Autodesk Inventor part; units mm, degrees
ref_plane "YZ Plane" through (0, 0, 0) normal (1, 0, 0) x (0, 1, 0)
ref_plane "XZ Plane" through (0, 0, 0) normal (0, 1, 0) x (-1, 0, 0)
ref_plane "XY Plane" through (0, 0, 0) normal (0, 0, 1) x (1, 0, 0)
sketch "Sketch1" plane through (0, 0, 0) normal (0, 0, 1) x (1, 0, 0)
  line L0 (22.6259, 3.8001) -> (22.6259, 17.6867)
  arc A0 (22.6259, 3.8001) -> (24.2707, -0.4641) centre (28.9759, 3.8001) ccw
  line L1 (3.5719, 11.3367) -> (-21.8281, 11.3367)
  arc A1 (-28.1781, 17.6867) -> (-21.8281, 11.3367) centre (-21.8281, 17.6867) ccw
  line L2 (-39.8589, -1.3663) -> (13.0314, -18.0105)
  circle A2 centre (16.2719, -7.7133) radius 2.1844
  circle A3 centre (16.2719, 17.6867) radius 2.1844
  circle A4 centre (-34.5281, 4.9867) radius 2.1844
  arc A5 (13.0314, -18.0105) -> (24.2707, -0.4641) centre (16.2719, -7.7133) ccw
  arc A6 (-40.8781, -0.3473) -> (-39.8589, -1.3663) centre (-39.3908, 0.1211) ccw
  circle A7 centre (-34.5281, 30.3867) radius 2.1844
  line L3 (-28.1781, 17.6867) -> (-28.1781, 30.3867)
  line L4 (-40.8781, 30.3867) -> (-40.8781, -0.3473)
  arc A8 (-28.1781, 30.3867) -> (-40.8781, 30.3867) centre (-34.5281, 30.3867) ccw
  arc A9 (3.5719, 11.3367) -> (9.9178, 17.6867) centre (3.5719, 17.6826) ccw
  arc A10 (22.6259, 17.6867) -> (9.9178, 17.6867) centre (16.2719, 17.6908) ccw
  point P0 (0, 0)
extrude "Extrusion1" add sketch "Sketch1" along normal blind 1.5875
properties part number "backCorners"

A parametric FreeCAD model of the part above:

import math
import FreeCAD as App
import Part
import Sketcher
from FreeCAD import Vector
Q = App.Units.Quantity

doc = App.newDocument("Part")
params = doc.addObject("Spreadsheet::Sheet", "Params")
for row, (alias, value) in enumerate([
    ("sketch1_width", "1 in"),
    ("sketch1_radius", "0.25 in"),
    ("sketch1_diameter", "0.172 in"),
    ("sketch1_height", "0.5 in"),
    ("sketch1_radius2", "0.425 in"),
    ("pad1_length", "0.0625 in"),
], start=1):
    params.set(f"A{row}", alias)
    params.set(f"B{row}", "=" + value)
    params.setAlias(f"B{row}", alias)

body = doc.addObject("PartDesign::Body", "Body")

# Sketch on XY plane
sketch1 = doc.addObject("Sketcher::SketchObject", "Sketch")
body.addObject(sketch1)
sketch1.AttachmentSupport = (doc.XY_Plane, [""])
sketch1.MapMode = "FlatFace"
sketch1.addGeometry(Part.ArcOfCircle(Part.Circle(Vector(29, 3.8, 0), Vector(0, 0, 1), 6.3), math.radians(180), math.radians(222)), False)
sketch1.addGeometry(Part.LineSegment(Vector(22.6, 3.8, 0), Vector(22.6, 17.7, 0)), False)
sketch1.addGeometry(Part.ArcOfCircle(Part.Circle(Vector(16.3, 17.7, 0), Vector(0, 0, 1), 6.4), math.radians(0), math.radians(180)), False)
sketch1.addGeometry(Part.ArcOfCircle(Part.Circle(Vector(3.6, 17.7, 0), Vector(0, 0, 1), 6.3), math.radians(-90), math.radians(0)), False)
sketch1.addGeometry(Part.LineSegment(Vector(3.6, 11.3, 0), Vector(-21.8, 11.3, 0)), False)
sketch1.addGeometry(Part.ArcOfCircle(Part.Circle(Vector(-21.8, 17.7, 0), Vector(0, 0, 1), 6.4), math.radians(180), math.radians(270)), False)
sketch1.addGeometry(Part.LineSegment(Vector(-28.2, 17.7, 0), Vector(-28.2, 30.4, 0)), False)
sketch1.addGeometry(Part.ArcOfCircle(Part.Circle(Vector(-34.5, 30.4, 0), Vector(0, 0, 1), 6.4), math.radians(0), math.radians(180)), False)
sketch1.addGeometry(Part.LineSegment(Vector(-40.9, 30.4, 0), Vector(-40.9, -0.3, 0)), False)
sketch1.addGeometry(Part.ArcOfCircle(Part.Circle(Vector(-39.4, 0.1, 0), Vector(0, 0, 1), 1.6), math.radians(-163), math.radians(-107)), False)
sketch1.addGeometry(Part.LineSegment(Vector(-39.9, -1.4, 0), Vector(13, -18, 0)), False)
sketch1.addGeometry(Part.ArcOfCircle(Part.Circle(Vector(16.3, -7.7, 0), Vector(0, 0, 1), 10.8), math.radians(-107), math.radians(42)), False)
sketch1.addGeometry(Part.Circle(Vector(-34.5, 5, 0), Vector(0, 0, 1), 2.2), False)
sketch1.addGeometry(Part.Circle(Vector(16.3, -7.7, 0), Vector(0, 0, 1), 2.2), False)
sketch1.addGeometry(Part.Circle(Vector(-34.5, 30.4, 0), Vector(0, 0, 1), 2.2), False)
sketch1.addGeometry(Part.Circle(Vector(16.3, 17.7, 0), Vector(0, 0, 1), 2.2), False)
sketch1.addConstraint(Sketcher.Constraint("Tangent", 0, 1, 1, 1))
sketch1.addConstraint(Sketcher.Constraint("Coincident", 1, 2, 2, 1))
sketch1.addConstraint(Sketcher.Constraint("Tangent", 2, 2, 3, 2))
sketch1.addConstraint(Sketcher.Constraint("Tangent", 3, 1, 4, 1))
sketch1.addConstraint(Sketcher.Constraint("Tangent", 4, 2, 5, 2))
sketch1.addConstraint(Sketcher.Constraint("Tangent", 5, 1, 6, 1))
sketch1.addConstraint(Sketcher.Constraint("Tangent", 6, 2, 7, 1))
sketch1.addConstraint(Sketcher.Constraint("Tangent", 7, 2, 8, 1))
sketch1.addConstraint(Sketcher.Constraint("Coincident", 8, 2, 9, 1))
sketch1.addConstraint(Sketcher.Constraint("Tangent", 9, 2, 10, 1))
sketch1.addConstraint(Sketcher.Constraint("Tangent", 10, 2, 11, 1))
sketch1.addConstraint(Sketcher.Constraint("Tangent", 11, 2, 0, 2))
sketch1.addConstraint(Sketcher.Constraint("Vertical", 1))
sketch1.addConstraint(Sketcher.Constraint("Horizontal", 4))
sketch1.addConstraint(Sketcher.Constraint("Vertical", 6))
sketch1.addConstraint(Sketcher.Constraint("Vertical", 8))
sketch1.addConstraint(Sketcher.Constraint("Coincident", 13, 3, 11, 3))
sketch1.addConstraint(Sketcher.Constraint("Coincident", 14, 3, 7, 3))
sketch1.addConstraint(Sketcher.Constraint("Equal", 0, 5))
sketch1.addConstraint(Sketcher.Constraint("Equal", 5, 7))
sketch1.addConstraint(Sketcher.Constraint("Equal", 12, 13))
sketch1.addConstraint(Sketcher.Constraint("Equal", 13, 14))
sketch1.addConstraint(Sketcher.Constraint("Equal", 14, 15))
sketch1.addConstraint(Sketcher.Constraint("Horizontal", 5, 3, 15, 3))
sketch1.addConstraint(Sketcher.Constraint("Horizontal", 15, 3, 1, 2))
sketch1.addConstraint(Sketcher.Constraint("Horizontal", 1, 2, 2, 2))
sketch1.addConstraint(Sketcher.Constraint("Vertical", 2, 3, 11, 3))
sketch1.addConstraint(Sketcher.Constraint("Vertical", 7, 3, 12, 3))
sketch1.addConstraint(Sketcher.Constraint("Vertical", 13, 3, 15, 3))
sketch1.addConstraint(Sketcher.Constraint("DistanceX", 4, 2, 4, 1, Q("1 in")))
sketch1.addConstraint(Sketcher.Constraint("Radius", 0, Q("0.25 in")))
sketch1.addConstraint(Sketcher.Constraint("Diameter", 12, Q("0.172 in")))
sketch1.addConstraint(Sketcher.Constraint("DistanceY", 6, 1, 6, 2, Q("0.5 in")))
sketch1.addConstraint(Sketcher.Constraint("Radius", 11, Q("0.425 in")))
sketch1.addConstraint(Sketcher.Constraint("DistanceX", 7, 3, 2, 3, Q("2 in")))
sketch1.addConstraint(Sketcher.Constraint("DistanceY", 11, 3, 5, 3, Q("1 in")))
sketch1.addConstraint(Sketcher.Constraint("DistanceY", 12, 3, 7, 3, Q("1 in")))
sketch1.addConstraint(Sketcher.Constraint("DistanceY", 8, 2, 8, 1, Q("1.21 in")))
sketch1.addConstraint(Sketcher.Constraint("Radius", 9, Q("0.0614 in")))
sketch1.addConstraint(Sketcher.Constraint("Radius", 2, Q("6.354 mm")))
sketch1.addConstraint(Sketcher.Constraint("DistanceX", -1, 1, 2, 3, Q("0.6406299 in")))
sketch1.addConstraint(Sketcher.Constraint("DistanceY", -1, 1, 0, 3, Q("0.1496 in")))
sketch1.addConstraint(Sketcher.Constraint("DistanceY", 9, 2, -1, 1, Q("0.0538 in")))
sketch1.setExpression("Constraints[29]", "Params.sketch1_width")
sketch1.setExpression("Constraints[30]", "Params.sketch1_radius")
sketch1.setExpression("Constraints[31]", "Params.sketch1_diameter")
sketch1.setExpression("Constraints[32]", "Params.sketch1_height")
sketch1.setExpression("Constraints[33]", "Params.sketch1_radius2")
pad1 = doc.addObject("PartDesign::Pad", "Pad")
body.addObject(pad1)
pad1.Profile = sketch1
pad1.setExpression("Length", "Params.pad1_length")

doc.recompute()
